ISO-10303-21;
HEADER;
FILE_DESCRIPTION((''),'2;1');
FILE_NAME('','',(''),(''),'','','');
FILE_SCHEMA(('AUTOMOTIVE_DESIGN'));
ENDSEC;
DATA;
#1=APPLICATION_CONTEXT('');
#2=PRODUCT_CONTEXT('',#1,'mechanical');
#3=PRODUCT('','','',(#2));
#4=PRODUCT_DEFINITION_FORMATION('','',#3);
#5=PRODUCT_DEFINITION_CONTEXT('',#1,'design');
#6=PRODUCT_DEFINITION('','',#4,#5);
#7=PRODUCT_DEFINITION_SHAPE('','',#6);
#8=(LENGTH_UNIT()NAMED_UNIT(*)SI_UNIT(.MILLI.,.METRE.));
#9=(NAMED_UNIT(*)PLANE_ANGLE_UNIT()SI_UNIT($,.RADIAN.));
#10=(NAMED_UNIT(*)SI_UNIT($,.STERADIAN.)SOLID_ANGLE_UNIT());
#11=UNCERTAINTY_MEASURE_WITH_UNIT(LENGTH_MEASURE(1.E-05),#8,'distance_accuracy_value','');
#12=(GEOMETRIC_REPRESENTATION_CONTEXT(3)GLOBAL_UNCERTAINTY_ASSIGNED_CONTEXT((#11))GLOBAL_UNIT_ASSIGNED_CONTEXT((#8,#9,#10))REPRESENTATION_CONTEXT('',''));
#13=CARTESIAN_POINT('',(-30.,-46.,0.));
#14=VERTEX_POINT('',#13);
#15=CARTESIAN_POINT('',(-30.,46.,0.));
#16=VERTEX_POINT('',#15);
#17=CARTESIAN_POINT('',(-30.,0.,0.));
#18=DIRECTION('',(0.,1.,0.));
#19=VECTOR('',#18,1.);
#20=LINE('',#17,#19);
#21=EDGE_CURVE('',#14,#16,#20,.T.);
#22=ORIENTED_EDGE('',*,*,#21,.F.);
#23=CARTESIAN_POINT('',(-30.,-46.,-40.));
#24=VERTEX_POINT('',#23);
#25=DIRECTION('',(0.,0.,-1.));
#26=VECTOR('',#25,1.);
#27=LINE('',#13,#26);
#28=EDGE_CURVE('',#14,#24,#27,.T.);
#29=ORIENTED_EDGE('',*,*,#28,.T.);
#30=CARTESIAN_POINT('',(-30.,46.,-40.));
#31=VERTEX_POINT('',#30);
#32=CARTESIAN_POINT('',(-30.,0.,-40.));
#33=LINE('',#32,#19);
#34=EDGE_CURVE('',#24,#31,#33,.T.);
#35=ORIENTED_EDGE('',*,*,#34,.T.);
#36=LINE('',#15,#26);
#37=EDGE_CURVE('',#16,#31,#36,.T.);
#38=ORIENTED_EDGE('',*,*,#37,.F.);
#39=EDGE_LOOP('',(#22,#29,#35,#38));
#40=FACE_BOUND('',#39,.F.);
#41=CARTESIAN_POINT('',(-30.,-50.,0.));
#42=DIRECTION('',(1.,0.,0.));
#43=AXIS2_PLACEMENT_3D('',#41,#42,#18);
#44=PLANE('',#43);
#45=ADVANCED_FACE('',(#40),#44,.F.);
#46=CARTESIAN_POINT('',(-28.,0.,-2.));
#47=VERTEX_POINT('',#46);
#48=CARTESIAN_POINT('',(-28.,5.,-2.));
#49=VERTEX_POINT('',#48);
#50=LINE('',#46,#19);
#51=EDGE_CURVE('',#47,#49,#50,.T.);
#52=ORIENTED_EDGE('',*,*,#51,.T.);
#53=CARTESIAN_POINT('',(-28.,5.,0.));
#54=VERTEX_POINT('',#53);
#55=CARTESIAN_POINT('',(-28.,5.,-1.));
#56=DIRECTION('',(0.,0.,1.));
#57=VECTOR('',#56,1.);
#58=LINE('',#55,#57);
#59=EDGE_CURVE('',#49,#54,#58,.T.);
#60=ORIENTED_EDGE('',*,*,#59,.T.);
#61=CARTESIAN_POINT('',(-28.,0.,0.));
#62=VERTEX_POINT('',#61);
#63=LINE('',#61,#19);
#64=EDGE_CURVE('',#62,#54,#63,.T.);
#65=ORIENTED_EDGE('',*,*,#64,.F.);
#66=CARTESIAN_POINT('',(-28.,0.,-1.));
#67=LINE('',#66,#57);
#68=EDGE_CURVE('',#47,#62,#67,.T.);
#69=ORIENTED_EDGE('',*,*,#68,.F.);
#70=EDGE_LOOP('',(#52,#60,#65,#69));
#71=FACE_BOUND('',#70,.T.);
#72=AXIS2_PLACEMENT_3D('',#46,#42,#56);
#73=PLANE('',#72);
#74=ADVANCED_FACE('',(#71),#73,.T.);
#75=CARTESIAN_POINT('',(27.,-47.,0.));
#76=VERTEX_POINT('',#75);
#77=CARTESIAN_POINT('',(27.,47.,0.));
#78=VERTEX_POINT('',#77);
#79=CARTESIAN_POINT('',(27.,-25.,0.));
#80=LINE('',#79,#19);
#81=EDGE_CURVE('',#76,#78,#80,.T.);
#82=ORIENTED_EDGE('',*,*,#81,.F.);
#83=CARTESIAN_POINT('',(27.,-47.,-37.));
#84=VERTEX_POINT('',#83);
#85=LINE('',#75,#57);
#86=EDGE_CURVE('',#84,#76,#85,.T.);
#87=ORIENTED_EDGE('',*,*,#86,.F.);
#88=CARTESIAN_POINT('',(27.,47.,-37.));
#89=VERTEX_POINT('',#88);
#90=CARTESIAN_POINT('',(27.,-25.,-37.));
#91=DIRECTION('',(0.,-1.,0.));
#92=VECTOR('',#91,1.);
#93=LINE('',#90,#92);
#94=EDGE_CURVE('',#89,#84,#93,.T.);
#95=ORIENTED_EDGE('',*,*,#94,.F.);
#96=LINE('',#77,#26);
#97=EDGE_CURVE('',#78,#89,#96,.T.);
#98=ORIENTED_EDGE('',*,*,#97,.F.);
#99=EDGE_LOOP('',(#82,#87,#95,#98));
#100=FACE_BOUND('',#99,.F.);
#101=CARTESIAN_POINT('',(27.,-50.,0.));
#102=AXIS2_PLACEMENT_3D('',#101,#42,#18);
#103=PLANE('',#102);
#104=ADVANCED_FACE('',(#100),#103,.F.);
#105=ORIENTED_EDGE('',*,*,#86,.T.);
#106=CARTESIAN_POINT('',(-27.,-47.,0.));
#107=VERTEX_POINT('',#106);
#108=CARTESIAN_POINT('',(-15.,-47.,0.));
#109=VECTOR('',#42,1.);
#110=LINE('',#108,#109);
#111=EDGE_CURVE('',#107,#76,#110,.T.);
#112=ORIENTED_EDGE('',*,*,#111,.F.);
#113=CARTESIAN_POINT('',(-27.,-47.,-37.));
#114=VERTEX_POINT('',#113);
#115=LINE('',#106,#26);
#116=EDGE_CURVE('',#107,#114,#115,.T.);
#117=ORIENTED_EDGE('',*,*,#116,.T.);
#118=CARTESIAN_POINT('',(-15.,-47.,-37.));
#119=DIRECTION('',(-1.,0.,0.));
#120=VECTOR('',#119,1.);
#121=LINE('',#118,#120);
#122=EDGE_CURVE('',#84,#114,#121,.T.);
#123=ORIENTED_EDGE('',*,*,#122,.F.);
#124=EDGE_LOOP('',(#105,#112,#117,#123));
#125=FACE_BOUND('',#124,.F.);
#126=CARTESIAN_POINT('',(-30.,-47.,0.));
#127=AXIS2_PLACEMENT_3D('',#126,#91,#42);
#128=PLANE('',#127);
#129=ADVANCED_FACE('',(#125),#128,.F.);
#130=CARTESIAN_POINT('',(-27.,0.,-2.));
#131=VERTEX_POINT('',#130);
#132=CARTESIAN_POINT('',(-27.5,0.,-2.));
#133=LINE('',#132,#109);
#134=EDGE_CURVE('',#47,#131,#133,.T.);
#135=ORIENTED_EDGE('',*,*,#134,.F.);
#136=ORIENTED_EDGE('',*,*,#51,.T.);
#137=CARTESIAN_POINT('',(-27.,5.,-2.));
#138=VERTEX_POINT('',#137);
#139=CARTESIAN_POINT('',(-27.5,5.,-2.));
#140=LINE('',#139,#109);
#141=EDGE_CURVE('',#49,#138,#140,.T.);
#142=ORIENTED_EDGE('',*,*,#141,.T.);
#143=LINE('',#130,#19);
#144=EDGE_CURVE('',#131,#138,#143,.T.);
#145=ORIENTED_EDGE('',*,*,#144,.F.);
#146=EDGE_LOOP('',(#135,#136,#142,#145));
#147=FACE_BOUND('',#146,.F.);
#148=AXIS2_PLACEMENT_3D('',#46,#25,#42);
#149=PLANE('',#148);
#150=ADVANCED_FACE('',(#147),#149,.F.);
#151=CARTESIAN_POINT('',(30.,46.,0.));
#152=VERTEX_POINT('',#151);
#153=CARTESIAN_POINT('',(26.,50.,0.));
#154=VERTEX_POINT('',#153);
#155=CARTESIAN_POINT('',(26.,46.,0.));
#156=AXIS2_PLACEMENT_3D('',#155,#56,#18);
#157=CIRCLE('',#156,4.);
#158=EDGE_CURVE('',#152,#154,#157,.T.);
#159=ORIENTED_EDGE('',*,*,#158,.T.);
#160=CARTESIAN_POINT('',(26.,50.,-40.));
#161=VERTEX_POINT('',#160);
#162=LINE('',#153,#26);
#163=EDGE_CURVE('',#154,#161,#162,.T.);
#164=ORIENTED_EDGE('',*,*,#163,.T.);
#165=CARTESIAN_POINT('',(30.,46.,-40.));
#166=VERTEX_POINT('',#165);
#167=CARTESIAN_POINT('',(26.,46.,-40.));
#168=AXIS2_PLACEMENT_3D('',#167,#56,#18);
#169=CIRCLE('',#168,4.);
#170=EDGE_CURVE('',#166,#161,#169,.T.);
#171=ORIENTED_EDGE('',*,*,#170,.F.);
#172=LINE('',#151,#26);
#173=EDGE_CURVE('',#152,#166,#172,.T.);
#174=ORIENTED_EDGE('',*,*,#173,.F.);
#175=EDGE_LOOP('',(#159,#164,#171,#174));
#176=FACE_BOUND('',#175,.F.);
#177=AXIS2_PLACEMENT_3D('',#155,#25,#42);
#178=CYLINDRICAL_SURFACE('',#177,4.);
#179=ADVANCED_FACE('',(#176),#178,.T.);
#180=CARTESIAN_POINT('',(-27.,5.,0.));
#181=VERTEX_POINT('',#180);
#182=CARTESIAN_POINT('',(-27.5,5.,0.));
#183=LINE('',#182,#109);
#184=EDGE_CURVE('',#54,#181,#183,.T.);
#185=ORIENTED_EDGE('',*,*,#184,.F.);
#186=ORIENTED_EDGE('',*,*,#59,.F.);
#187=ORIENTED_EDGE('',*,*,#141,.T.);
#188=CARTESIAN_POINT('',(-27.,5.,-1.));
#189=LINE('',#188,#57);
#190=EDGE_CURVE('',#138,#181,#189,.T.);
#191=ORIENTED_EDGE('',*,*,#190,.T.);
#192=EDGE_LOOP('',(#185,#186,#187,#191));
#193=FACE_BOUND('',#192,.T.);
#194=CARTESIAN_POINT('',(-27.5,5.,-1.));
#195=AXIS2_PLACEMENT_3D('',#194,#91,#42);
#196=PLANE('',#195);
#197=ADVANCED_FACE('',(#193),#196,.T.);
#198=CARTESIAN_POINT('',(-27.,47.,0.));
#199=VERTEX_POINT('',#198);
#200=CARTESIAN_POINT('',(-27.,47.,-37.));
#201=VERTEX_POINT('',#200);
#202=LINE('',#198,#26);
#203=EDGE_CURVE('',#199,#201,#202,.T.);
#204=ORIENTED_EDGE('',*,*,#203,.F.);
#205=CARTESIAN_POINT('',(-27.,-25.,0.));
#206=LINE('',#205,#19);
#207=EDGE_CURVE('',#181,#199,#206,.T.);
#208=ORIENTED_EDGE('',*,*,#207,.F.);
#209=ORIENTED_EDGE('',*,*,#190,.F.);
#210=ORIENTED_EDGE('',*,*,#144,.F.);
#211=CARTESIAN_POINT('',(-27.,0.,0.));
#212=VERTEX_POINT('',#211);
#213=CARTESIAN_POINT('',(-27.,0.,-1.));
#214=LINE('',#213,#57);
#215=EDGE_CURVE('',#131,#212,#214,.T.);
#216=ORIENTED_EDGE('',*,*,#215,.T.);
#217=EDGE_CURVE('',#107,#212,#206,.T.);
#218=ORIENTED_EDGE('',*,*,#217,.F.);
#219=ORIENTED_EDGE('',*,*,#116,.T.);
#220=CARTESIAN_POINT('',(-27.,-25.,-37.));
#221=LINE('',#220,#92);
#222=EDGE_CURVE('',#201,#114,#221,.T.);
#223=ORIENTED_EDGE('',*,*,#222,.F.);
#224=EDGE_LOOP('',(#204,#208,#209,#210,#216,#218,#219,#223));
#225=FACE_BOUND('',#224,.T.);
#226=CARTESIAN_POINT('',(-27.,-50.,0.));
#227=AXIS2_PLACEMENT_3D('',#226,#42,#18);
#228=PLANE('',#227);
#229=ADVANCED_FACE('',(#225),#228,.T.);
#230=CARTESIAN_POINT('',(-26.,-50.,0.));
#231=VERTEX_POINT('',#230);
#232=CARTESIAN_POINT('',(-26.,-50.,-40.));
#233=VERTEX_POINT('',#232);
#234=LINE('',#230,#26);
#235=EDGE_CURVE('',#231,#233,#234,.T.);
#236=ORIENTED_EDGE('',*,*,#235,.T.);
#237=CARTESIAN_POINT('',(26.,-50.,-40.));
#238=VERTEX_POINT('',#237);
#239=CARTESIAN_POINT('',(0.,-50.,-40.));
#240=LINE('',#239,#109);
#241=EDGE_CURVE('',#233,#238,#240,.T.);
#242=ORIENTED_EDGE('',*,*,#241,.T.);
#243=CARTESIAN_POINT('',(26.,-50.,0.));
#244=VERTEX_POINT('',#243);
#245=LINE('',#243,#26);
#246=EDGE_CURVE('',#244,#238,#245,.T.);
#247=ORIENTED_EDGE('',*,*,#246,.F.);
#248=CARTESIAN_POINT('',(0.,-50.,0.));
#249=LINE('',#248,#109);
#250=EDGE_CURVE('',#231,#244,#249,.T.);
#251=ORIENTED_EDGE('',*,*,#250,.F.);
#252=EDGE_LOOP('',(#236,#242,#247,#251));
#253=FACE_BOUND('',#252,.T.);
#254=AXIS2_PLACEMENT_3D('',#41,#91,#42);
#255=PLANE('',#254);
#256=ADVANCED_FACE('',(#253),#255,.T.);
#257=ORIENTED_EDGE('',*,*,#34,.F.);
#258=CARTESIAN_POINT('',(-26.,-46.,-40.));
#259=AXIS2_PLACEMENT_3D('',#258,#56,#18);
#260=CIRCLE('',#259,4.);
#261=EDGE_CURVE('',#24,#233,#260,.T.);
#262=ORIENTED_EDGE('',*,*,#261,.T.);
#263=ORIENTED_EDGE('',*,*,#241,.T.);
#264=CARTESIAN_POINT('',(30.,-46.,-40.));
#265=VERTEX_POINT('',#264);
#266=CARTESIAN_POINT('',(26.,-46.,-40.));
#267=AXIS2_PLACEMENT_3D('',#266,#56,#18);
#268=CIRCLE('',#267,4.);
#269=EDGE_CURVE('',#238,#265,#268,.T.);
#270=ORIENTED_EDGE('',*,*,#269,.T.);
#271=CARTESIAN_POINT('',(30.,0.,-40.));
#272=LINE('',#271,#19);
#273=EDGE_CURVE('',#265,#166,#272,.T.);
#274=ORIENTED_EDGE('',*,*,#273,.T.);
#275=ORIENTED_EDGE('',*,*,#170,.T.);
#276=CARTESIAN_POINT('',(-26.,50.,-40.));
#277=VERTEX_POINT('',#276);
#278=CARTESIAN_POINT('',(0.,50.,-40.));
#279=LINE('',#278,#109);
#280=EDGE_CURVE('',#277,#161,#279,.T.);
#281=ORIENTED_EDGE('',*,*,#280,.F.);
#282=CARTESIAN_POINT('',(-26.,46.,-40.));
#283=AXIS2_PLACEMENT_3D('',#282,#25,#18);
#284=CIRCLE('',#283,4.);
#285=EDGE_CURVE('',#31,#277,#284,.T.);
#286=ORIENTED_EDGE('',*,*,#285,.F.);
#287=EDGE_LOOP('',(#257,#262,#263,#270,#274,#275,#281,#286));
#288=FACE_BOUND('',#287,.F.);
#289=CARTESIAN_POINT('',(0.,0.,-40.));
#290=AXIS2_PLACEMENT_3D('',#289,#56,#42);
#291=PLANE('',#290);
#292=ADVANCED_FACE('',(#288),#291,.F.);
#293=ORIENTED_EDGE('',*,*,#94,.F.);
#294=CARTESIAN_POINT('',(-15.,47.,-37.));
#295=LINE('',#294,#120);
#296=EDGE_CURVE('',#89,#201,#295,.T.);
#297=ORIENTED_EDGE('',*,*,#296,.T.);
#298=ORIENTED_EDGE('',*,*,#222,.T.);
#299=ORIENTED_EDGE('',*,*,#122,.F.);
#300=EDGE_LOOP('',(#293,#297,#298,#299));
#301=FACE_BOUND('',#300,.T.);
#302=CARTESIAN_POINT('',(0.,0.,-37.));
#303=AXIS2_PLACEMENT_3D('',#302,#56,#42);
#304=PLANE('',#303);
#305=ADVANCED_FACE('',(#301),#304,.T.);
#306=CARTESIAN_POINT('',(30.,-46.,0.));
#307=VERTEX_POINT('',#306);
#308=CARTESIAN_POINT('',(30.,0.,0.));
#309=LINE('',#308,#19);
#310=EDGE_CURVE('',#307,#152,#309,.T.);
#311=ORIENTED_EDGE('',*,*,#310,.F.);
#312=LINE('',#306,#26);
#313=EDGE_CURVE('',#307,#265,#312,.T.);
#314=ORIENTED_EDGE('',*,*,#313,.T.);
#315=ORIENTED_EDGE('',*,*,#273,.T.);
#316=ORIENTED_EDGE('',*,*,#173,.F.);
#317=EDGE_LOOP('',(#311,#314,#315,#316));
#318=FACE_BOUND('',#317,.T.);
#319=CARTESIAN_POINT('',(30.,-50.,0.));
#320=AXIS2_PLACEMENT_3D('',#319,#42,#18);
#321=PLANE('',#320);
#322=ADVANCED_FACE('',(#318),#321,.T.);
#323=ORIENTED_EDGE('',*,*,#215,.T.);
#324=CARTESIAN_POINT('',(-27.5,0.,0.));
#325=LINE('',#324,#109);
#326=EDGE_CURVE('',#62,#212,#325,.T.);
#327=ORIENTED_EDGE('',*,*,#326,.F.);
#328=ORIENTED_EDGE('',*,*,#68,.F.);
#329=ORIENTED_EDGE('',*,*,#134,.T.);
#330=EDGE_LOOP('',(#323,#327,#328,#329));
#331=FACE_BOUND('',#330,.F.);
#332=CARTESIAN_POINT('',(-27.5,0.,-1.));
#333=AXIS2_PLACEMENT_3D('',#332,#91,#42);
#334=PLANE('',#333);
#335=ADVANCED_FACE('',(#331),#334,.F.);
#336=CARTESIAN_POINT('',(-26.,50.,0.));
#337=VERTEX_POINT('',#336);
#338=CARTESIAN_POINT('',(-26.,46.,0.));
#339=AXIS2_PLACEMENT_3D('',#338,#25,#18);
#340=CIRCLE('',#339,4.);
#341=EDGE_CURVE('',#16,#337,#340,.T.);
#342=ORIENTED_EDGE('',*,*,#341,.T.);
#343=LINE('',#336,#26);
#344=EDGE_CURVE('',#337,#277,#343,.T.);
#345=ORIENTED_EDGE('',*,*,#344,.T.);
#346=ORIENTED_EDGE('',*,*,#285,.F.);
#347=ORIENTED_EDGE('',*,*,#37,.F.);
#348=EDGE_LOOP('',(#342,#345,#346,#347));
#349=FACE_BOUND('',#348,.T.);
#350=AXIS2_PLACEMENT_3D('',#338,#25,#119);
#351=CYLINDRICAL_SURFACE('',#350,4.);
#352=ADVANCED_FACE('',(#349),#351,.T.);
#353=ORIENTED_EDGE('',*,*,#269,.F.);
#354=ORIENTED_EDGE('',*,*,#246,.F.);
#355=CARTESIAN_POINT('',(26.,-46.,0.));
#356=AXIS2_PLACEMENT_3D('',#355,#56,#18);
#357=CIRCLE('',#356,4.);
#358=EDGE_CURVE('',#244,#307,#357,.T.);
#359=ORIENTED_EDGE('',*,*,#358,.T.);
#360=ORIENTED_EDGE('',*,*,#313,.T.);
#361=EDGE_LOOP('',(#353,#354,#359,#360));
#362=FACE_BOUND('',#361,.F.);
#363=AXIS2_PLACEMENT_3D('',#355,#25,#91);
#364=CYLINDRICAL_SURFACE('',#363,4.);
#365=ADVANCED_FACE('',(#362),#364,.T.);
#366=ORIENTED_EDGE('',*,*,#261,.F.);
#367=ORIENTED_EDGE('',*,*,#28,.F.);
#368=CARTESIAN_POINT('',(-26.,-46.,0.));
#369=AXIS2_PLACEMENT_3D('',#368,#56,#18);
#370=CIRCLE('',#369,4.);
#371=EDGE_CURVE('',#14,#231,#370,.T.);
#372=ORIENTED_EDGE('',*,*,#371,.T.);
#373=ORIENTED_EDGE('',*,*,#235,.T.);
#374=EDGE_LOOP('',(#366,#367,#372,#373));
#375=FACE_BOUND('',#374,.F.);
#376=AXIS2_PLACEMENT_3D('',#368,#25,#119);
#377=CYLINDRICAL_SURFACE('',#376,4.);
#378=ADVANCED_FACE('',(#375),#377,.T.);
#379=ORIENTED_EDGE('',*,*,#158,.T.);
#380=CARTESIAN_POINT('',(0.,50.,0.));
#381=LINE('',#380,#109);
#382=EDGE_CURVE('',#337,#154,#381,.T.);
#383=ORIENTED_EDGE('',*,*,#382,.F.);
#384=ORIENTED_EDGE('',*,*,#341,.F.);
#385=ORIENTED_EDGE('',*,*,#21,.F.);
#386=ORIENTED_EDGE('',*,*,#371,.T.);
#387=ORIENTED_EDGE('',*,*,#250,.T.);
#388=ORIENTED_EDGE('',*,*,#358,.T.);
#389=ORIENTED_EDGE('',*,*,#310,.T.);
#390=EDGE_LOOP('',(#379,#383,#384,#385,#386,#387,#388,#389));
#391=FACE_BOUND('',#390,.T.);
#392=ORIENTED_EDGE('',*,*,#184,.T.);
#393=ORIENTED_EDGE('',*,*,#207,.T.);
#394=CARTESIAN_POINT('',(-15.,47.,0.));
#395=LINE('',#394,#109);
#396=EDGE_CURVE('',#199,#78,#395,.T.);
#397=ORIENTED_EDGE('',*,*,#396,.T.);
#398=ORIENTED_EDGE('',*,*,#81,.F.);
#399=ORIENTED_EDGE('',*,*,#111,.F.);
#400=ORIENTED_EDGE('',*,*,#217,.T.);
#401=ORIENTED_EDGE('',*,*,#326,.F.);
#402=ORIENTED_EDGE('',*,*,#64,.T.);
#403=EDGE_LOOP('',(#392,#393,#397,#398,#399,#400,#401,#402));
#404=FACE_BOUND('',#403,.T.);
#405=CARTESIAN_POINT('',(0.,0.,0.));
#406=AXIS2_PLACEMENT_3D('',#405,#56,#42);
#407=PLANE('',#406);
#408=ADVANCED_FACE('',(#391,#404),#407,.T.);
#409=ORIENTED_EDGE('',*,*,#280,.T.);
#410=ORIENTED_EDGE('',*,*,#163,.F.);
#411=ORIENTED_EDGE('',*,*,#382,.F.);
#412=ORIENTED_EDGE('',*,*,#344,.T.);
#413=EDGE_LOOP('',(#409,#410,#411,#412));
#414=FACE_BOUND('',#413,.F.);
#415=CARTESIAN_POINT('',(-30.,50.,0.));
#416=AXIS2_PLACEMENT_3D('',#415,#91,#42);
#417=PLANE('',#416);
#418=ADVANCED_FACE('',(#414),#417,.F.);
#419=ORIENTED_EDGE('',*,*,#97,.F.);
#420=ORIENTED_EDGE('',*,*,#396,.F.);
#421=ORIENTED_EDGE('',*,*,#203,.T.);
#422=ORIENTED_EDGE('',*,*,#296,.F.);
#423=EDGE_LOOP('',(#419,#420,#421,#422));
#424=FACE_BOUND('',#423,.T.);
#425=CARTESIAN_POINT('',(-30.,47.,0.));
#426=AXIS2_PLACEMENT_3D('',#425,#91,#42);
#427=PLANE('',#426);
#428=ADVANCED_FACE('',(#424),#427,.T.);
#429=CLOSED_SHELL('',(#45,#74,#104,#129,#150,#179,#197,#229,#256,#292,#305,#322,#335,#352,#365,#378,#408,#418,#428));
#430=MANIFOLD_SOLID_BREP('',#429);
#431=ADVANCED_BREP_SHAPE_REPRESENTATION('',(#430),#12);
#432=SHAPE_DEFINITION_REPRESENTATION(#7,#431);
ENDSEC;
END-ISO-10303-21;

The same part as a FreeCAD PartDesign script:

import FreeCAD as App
import Part
import Sketcher
from FreeCAD import Vector
Q = App.Units.Quantity


def edges_at(feature, points):
    """Names of the edges that pass closest to the given points."""
    edges = feature.Shape.Edges
    near = lambda p: min(range(len(edges)), key=lambda i: edges[i].distToShape(Part.Vertex(*p))[0])
    return sorted({f"Edge{near(p) + 1}" for p in points})


def faces_at(feature, points):
    """Names of the faces that lie closest to the given points."""
    faces = feature.Shape.Faces
    near = lambda p: min(range(len(faces)), key=lambda i: faces[i].distToShape(Part.Vertex(*p))[0])
    return sorted({f"Face{near(p) + 1}" for p in points})

doc = App.newDocument("Part")
params = doc.addObject("Spreadsheet::Sheet", "Params")
for row, (alias, value) in enumerate([
    ("sketch1_width", "60 mm"),
    ("sketch1_height", "100 mm"),
    ("pad1_length", "40 mm"),
    ("thickness_wall", "3 mm"),
    ("fillet_radius", "4 mm"),
    ("sketch2_width", "1 mm"),
    ("sketch2_height", "2 mm"),
    ("pocket1_length", "5 mm"),
], start=1):
    params.set(f"A{row}", alias)
    params.set(f"B{row}", "=" + value)
    params.setAlias(f"B{row}", alias)

body = doc.addObject("PartDesign::Body", "Body")

# Sketch on XY plane
sketch1 = body.newObject("Sketcher::SketchObject", "Sketch")
sketch1.AttachmentSupport = (doc.getObject("XY_Plane"), [""])
sketch1.MapMode = "FlatFace"
sketch1.addGeometry([
    Part.LineSegment(Vector(-30, 50, 0), Vector(-30, -50, 0)),
    Part.LineSegment(Vector(-30, -50, 0), Vector(30, -50, 0)),
    Part.LineSegment(Vector(30, -50, 0), Vector(30, 50, 0)),
    Part.LineSegment(Vector(30, 50, 0), Vector(-30, 50, 0)),
], False)
sketch1.addConstraint([
    Sketcher.Constraint("Coincident", 0, 2, 1, 1),
    Sketcher.Constraint("Coincident", 1, 2, 2, 1),
    Sketcher.Constraint("Coincident", 2, 2, 3, 1),
    Sketcher.Constraint("Coincident", 3, 2, 0, 1),
    Sketcher.Constraint("Vertical", 0),
    Sketcher.Constraint("Horizontal", 1),
    Sketcher.Constraint("Vertical", 2),
    Sketcher.Constraint("Horizontal", 3),
    Sketcher.Constraint("Symmetric", 0, 2, 2, 2, -1, 1),
    Sketcher.Constraint("DistanceX", 1, 1, 1, 2, Q("60 mm")),
    Sketcher.Constraint("DistanceY", 0, 2, 0, 1, Q("100 mm")),
])
sketch1.setExpression("Constraints[9]", "Params.sketch1_width")
sketch1.setExpression("Constraints[10]", "Params.sketch1_height")
pad1 = body.newObject("PartDesign::Pad", "Pad")
pad1.Profile = sketch1
pad1.setExpression("Length", "Params.pad1_length")
pad1.Reversed = True
doc.recompute()

thickness = body.newObject("PartDesign::Thickness", "Thickness")
thickness.Base = (pad1, faces_at(pad1, [(0, 0, 0)]))
thickness.setExpression("Value", "Params.thickness_wall")
thickness.Reversed = True
thickness.Join = "Intersection"
doc.recompute()

fillet = body.newObject("PartDesign::Fillet", "Fillet")
fillet.Base = (thickness, edges_at(thickness, [
    (30, -50, -20),
    (-30, -50, -20),
    (30, 50, -20),
    (-30, 50, -20),
]))
fillet.setExpression("Radius", "Params.fillet_radius")

# Sketch on XZ plane
sketch2 = body.newObject("Sketcher::SketchObject", "Sketch001")
sketch2.AttachmentSupport = (doc.getObject("XZ_Plane"), [""])
sketch2.MapMode = "FlatFace"
sketch2.addGeometry([
    Part.LineSegment(Vector(-28, 0, 0), Vector(-28, -2, 0)),
    Part.LineSegment(Vector(-28, -2, 0), Vector(-27, -2, 0)),
    Part.LineSegment(Vector(-27, -2, 0), Vector(-27, 0, 0)),
    Part.LineSegment(Vector(-27, 0, 0), Vector(-28, 0, 0)),
], False)
sketch2.addConstraint([
    Sketcher.Constraint("Coincident", 0, 2, 1, 1),
    Sketcher.Constraint("Coincident", 1, 2, 2, 1),
    Sketcher.Constraint("Coincident", 2, 2, 3, 1),
    Sketcher.Constraint("Coincident", 3, 2, 0, 1),
    Sketcher.Constraint("Vertical", 0),
    Sketcher.Constraint("Horizontal", 1),
    Sketcher.Constraint("Vertical", 2),
    Sketcher.Constraint("Horizontal", 3),
    Sketcher.Constraint("PointOnObject", 2, 2, -1),
    Sketcher.Constraint("DistanceX", 1, 1, 1, 2, Q("1 mm")),
    Sketcher.Constraint("DistanceY", 0, 2, 0, 1, Q("2 mm")),
    Sketcher.Constraint("DistanceX", 0, 2, -1, 1, Q("28 mm")),
])
sketch2.setExpression("Constraints[9]", "Params.sketch2_width")
sketch2.setExpression("Constraints[10]", "Params.sketch2_height")
pocket1 = body.newObject("PartDesign::Pocket", "Pocket")
pocket1.Profile = sketch2
pocket1.setExpression("Length", "Params.pocket1_length")

doc.recompute()
